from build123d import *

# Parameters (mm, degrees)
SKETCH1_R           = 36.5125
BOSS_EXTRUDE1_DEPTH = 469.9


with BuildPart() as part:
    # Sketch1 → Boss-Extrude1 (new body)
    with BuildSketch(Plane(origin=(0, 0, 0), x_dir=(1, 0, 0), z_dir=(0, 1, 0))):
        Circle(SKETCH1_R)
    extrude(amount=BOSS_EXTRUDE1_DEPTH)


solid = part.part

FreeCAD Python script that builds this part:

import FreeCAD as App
import Part
import Sketcher
Q = App.Units.Quantity

doc = App.newDocument("Part")
params = doc.addObject("Spreadsheet::Sheet", "Params")
for row, (alias, value) in enumerate([
    ("sketch1_diameter", "2.875 in"),
    ("pad1_length", "18.5 in"),
], start=1):
    params.set(f"A{row}", alias)
    params.set(f"B{row}", "=" + value)
    params.setAlias(f"B{row}", alias)

body = doc.addObject("PartDesign::Body", "Body")

# Sketch on XZ plane
sketch1 = body.newObject("Sketcher::SketchObject", "Sketch")
sketch1.AttachmentSupport = (doc.getObject("XZ_Plane"), [""])
sketch1.MapMode = "FlatFace"
sketch1.addGeometry(Part.Circle(App.Vector(0, 0, 0), App.Vector(0, 0, 1), 37), False)
sketch1.addConstraint([
    Sketcher.Constraint("Coincident", 0, 3, -1, 1),
    Sketcher.Constraint("Diameter", 0, Q("2.875 in")),
])
sketch1.setExpression("Constraints[1]", "Params.sketch1_diameter")
pad1 = body.newObject("PartDesign::Pad", "Pad")
pad1.Profile = sketch1
pad1.setExpression("Length", "Params.pad1_length")
pad1.Reversed = True

doc.recompute()
